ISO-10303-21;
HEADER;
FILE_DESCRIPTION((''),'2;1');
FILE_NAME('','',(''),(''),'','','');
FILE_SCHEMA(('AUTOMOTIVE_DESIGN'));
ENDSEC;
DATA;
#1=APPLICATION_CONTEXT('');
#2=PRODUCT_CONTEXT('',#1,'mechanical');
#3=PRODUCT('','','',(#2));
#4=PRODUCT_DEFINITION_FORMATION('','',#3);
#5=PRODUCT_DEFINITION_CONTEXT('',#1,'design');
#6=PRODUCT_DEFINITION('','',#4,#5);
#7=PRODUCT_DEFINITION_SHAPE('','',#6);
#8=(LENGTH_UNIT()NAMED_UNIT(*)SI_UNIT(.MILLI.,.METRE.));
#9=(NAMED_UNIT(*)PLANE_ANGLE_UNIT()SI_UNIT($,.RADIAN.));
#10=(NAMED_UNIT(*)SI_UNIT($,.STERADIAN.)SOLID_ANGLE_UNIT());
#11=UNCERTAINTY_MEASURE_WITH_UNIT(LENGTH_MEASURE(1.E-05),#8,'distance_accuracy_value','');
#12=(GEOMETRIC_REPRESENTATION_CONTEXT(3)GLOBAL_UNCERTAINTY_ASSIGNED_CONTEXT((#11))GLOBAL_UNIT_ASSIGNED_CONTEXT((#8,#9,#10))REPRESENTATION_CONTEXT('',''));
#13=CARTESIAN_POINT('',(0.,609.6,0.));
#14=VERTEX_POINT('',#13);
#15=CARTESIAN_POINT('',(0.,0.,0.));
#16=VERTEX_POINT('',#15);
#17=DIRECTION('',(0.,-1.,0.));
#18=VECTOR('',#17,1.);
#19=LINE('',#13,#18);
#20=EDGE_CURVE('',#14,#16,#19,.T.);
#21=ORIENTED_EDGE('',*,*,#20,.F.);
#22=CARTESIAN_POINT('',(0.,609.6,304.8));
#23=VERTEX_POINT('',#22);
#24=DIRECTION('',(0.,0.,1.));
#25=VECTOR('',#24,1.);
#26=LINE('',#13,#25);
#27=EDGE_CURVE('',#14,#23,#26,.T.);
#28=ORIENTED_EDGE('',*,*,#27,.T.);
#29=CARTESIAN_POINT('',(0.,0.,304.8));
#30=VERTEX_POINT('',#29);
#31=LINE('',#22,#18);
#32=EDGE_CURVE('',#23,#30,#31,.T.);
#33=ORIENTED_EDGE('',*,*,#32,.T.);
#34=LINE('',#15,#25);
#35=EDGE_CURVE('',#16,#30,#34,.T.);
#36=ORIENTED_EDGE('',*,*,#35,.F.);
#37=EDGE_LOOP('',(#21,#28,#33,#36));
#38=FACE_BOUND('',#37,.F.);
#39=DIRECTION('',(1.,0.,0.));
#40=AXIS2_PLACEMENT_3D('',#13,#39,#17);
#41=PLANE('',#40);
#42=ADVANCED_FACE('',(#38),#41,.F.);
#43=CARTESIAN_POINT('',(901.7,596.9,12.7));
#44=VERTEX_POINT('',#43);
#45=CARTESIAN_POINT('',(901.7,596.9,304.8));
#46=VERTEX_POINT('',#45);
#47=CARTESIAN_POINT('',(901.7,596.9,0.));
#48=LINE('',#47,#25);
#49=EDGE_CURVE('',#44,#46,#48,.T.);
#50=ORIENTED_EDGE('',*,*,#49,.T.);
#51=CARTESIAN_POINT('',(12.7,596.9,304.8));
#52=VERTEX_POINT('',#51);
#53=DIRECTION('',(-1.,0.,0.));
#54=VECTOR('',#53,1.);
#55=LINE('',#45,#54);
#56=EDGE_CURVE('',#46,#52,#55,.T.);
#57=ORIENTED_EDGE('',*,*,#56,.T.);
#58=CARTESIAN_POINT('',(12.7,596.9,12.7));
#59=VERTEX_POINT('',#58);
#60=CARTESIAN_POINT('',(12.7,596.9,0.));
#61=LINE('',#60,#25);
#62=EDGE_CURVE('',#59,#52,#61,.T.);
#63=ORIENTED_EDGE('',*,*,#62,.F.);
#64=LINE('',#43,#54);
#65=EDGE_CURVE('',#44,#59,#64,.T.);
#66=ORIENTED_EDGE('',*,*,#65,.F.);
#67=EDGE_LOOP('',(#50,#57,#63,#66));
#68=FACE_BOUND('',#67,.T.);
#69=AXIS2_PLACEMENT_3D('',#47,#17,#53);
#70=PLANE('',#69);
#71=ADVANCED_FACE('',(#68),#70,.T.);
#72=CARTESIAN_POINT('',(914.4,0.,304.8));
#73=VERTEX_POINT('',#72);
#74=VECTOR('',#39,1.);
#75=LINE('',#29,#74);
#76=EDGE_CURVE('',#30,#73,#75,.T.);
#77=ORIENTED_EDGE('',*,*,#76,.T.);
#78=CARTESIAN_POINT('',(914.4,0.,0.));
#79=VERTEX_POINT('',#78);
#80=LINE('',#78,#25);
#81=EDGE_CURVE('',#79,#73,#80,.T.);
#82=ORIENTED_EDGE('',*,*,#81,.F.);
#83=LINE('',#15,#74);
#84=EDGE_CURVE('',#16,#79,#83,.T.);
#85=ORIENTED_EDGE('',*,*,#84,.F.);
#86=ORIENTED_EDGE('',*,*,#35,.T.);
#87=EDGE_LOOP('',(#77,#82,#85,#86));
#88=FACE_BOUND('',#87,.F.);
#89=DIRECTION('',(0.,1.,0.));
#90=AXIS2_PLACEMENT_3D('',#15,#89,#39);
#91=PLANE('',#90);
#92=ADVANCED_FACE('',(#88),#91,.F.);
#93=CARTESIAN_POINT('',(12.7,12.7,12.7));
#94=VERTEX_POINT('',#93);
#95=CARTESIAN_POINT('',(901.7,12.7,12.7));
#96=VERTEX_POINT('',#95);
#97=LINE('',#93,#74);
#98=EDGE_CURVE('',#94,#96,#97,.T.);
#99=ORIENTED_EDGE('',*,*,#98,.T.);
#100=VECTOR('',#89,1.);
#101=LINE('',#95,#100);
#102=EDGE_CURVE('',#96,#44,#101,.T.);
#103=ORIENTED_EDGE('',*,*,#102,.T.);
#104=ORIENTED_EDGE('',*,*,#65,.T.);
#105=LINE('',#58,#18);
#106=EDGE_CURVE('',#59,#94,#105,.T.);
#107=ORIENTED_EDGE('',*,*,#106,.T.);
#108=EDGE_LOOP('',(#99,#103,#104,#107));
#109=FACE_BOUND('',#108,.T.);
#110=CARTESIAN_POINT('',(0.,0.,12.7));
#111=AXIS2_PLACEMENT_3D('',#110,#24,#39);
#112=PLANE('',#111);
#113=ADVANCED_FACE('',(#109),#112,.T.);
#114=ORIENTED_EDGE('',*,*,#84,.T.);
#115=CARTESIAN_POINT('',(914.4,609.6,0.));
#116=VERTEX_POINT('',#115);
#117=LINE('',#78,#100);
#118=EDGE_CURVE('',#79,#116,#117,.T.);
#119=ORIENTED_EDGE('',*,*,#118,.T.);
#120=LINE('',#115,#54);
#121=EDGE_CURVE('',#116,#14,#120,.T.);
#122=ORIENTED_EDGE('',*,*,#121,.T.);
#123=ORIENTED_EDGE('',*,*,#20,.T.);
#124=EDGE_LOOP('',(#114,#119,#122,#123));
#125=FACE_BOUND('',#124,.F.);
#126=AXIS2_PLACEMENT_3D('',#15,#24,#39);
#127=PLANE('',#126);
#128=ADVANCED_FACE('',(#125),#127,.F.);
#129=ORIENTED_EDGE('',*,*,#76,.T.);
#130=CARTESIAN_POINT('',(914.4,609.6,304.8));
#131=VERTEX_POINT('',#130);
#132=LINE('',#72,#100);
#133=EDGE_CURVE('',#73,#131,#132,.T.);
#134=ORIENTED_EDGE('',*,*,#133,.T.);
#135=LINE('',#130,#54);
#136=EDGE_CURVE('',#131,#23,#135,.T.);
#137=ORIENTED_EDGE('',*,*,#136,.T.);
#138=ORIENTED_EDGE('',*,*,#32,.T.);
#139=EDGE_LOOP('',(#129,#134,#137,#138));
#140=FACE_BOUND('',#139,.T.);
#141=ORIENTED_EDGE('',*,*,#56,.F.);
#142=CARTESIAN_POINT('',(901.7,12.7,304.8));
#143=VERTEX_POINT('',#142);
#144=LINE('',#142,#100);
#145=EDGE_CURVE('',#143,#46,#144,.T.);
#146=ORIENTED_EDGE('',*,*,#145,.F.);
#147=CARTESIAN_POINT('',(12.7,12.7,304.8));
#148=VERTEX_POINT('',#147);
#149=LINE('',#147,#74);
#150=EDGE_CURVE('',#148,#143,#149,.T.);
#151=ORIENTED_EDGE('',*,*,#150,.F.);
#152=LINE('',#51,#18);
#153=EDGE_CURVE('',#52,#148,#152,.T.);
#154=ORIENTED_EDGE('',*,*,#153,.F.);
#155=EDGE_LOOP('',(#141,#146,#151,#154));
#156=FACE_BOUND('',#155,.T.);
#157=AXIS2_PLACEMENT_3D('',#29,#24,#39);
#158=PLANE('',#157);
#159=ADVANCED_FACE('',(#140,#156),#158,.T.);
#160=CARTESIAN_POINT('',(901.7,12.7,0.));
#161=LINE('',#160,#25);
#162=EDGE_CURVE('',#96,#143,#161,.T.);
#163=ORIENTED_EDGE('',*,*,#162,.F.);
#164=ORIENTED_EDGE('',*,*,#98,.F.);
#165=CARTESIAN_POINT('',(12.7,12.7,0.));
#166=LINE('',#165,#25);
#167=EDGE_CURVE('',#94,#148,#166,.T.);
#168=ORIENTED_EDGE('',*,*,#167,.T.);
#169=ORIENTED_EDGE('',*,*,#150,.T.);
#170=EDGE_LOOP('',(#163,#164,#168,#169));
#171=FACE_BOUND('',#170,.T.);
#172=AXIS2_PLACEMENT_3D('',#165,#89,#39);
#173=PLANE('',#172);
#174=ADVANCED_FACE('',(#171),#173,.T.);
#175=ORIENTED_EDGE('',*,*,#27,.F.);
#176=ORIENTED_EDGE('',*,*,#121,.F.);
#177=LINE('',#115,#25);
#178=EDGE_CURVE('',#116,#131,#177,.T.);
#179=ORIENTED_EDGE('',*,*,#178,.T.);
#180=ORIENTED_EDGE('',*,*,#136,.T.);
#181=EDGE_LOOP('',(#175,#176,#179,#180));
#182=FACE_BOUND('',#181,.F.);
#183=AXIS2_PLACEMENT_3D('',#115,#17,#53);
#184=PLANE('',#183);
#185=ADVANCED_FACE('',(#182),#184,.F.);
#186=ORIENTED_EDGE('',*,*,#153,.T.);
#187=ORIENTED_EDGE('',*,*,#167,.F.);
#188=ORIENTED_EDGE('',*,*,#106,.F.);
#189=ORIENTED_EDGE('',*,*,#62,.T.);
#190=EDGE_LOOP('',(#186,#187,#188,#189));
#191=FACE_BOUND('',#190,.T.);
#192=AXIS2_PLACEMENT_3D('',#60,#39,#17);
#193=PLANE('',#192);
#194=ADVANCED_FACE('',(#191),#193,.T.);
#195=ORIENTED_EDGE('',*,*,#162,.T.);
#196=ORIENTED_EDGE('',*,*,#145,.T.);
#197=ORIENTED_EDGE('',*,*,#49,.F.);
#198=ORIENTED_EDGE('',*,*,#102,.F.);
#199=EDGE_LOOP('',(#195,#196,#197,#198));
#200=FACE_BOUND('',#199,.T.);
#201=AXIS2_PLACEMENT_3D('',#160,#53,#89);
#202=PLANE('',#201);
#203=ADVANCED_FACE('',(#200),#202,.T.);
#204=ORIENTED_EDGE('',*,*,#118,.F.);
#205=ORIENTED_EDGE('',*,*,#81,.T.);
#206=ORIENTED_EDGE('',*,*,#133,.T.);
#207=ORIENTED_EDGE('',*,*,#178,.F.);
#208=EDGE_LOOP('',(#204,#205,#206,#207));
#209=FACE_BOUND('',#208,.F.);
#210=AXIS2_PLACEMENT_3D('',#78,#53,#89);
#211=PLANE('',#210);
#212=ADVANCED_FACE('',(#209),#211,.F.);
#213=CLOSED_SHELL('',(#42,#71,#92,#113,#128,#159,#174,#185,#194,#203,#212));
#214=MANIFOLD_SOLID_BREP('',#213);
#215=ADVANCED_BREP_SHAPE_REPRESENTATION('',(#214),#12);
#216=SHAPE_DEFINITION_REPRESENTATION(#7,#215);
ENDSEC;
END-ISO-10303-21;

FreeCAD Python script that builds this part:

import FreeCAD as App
import Part
import Sketcher
Q = App.Units.Quantity

doc = App.newDocument("Part")
body = doc.addObject("PartDesign::Body", "Body")

sketch1 = body.newObject("Sketcher::SketchObject", "Sketch")
sketch1.AttachmentSupport = (doc.getObject("XY_Plane"), [""])
sketch1.MapMode = "FlatFace"
sketch1.addGeometry([
    Part.LineSegment(App.Vector(0, 610, 0), App.Vector(0, 0, 0)),
    Part.LineSegment(App.Vector(0, 0, 0), App.Vector(914, 0, 0)),
    Part.LineSegment(App.Vector(914, 0, 0), App.Vector(914, 610, 0)),
    Part.LineSegment(App.Vector(914, 610, 0), App.Vector(0, 610, 0)),
    Part.LineSegment(App.Vector(902, 13, 0), App.Vector(13, 13, 0)),
    Part.LineSegment(App.Vector(13, 13, 0), App.Vector(13, 597, 0)),
    Part.LineSegment(App.Vector(13, 597, 0), App.Vector(902, 597, 0)),
    Part.LineSegment(App.Vector(902, 597, 0), App.Vector(902, 13, 0)),
], False)
sketch1.addConstraint([
    Sketcher.Constraint("Coincident", 0, 2, 1, 1),
    Sketcher.Constraint("Coincident", 1, 2, 2, 1),
    Sketcher.Constraint("Coincident", 2, 2, 3, 1),
    Sketcher.Constraint("Coincident", 3, 2, 0, 1),
    Sketcher.Constraint("Coincident", 4, 2, 5, 1),
    Sketcher.Constraint("Coincident", 5, 2, 6, 1),
    Sketcher.Constraint("Coincident", 6, 2, 7, 1),
    Sketcher.Constraint("Coincident", 7, 2, 4, 1),
    Sketcher.Constraint("Vertical", 0),
    Sketcher.Constraint("Horizontal", 1),
    Sketcher.Constraint("Vertical", 2),
    Sketcher.Constraint("Horizontal", 3),
    Sketcher.Constraint("Horizontal", 4),
    Sketcher.Constraint("Vertical", 5),
    Sketcher.Constraint("Horizontal", 6),
    Sketcher.Constraint("Vertical", 7),
    Sketcher.Constraint("Coincident", 0, 2, -1, 1),
    Sketcher.Constraint("DistanceX", 1, 1, 1, 2, Q("36 in")),
    Sketcher.Constraint("DistanceY", 0, 2, 0, 1, Q("24 in")),
    Sketcher.Constraint("DistanceX", -1, 1, 4, 2, Q("0.5 in")),
    Sketcher.Constraint("DistanceY", -1, 1, 4, 2, Q("0.5 in")),
    Sketcher.Constraint("DistanceY", 5, 2, 3, 2, Q("0.5 in")),
    Sketcher.Constraint("DistanceX", 6, 2, 2, 2, Q("0.5 in")),
])
pad1 = body.newObject("PartDesign::Pad", "Pad")
pad1.Profile = sketch1
pad1.Length = Q("12 in")

sketch2 = body.newObject("Sketcher::SketchObject", "Sketch001")
sketch2.AttachmentSupport = (doc.getObject("XY_Plane"), [""])
sketch2.MapMode = "FlatFace"
sketch2.addGeometry([
    Part.LineSegment(App.Vector(13, 597, 0), App.Vector(13, 13, 0)),
    Part.LineSegment(App.Vector(13, 13, 0), App.Vector(902, 13, 0)),
    Part.LineSegment(App.Vector(902, 13, 0), App.Vector(902, 597, 0)),
    Part.LineSegment(App.Vector(902, 597, 0), App.Vector(13, 597, 0)),
], False)
sketch2.addConstraint([
    Sketcher.Constraint("Coincident", 0, 2, 1, 1),
    Sketcher.Constraint("Coincident", 1, 2, 2, 1),
    Sketcher.Constraint("Coincident", 2, 2, 3, 1),
    Sketcher.Constraint("Coincident", 3, 2, 0, 1),
    Sketcher.Constraint("Vertical", 0),
    Sketcher.Constraint("Horizontal", 1),
    Sketcher.Constraint("Vertical", 2),
    Sketcher.Constraint("Horizontal", 3),
    Sketcher.Constraint("DistanceX", -1, 1, 0, 2, Q("0.5 in")),
    Sketcher.Constraint("DistanceY", -1, 1, 0, 2, Q("0.5 in")),
    Sketcher.Constraint("DistanceX", 1, 1, 1, 2, Q("35 in")),
    Sketcher.Constraint("DistanceY", 0, 2, 0, 1, Q("23 in")),
])
pad2 = body.newObject("PartDesign::Pad", "Pad001")
pad2.Profile = sketch2
pad2.Length = Q("0.5 in")

doc.recompute()
